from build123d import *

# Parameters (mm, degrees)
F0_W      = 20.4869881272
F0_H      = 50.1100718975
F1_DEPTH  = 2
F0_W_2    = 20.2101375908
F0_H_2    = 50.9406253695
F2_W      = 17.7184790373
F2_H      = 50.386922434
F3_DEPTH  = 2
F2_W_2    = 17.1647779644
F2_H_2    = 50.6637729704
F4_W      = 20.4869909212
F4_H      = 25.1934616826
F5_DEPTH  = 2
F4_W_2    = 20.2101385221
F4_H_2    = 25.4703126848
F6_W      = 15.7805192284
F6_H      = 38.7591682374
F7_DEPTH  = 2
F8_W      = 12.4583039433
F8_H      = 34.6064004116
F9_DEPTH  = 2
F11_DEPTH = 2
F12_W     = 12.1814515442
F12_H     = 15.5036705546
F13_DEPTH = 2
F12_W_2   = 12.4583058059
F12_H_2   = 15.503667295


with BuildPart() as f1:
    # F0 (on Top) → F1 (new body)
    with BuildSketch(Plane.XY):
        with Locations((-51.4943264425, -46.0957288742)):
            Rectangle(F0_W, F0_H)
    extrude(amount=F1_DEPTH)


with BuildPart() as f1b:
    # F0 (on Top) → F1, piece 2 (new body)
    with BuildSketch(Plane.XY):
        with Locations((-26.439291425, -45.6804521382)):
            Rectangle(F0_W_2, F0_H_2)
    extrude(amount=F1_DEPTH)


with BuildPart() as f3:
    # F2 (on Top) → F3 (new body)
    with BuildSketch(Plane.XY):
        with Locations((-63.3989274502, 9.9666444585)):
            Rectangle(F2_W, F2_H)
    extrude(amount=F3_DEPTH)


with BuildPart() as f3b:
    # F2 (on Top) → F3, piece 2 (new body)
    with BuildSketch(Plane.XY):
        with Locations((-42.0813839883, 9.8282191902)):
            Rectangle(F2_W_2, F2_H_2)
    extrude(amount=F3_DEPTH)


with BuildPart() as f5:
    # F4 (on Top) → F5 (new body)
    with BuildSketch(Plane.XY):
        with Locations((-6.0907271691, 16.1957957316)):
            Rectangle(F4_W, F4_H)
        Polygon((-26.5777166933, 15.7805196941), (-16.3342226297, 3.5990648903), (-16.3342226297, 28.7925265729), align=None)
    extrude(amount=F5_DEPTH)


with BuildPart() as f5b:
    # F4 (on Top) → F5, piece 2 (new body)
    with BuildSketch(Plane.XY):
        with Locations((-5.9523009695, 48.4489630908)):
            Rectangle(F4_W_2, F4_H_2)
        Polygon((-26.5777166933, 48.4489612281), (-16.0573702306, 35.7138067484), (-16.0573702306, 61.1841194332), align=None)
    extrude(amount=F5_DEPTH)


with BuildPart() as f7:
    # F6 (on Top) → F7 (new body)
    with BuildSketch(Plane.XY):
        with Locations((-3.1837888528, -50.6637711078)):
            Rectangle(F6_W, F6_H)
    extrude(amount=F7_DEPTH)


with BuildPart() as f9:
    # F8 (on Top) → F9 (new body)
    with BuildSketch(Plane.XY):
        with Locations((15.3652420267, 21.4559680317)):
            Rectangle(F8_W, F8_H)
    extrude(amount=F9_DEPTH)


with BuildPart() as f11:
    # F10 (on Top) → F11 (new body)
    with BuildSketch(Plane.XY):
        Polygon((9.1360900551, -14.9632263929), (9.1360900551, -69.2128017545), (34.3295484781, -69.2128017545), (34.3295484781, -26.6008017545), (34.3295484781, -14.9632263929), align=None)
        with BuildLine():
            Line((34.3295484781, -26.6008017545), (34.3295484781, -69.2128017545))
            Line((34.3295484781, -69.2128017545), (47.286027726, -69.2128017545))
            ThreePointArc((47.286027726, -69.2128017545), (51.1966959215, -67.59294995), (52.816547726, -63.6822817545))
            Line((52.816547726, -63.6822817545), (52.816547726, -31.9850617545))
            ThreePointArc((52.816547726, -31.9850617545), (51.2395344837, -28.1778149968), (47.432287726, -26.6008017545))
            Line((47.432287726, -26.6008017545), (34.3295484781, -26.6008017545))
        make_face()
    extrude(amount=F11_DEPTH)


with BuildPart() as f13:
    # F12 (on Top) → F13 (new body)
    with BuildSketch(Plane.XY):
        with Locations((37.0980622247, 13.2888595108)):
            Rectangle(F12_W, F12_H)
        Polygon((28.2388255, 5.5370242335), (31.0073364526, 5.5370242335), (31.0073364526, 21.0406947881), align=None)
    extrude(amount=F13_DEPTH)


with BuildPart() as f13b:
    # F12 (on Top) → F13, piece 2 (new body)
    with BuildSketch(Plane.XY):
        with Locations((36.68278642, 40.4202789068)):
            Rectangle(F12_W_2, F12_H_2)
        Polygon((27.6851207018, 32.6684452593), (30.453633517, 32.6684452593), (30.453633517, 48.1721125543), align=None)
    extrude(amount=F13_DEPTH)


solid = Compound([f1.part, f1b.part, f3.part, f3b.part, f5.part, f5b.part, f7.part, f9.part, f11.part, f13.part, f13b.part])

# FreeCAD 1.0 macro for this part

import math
import FreeCAD as App
import Part
import Sketcher
Q = App.Units.Quantity

doc = App.newDocument("Part")
body = doc.addObject("PartDesign::Body", "Body")

sketch1 = body.newObject("Sketcher::SketchObject", "Sketch")
sketch1.AttachmentSupport = (doc.getObject("XY_Plane"), [""])
sketch1.MapMode = "FlatFace"
sketch1.addGeometry(Part.LineSegment(App.Vector(-62, -21, 0), App.Vector(-62, -71, 0)), False)
sketch1.addGeometry(Part.LineSegment(App.Vector(-62, -71, 0), App.Vector(-41, -71, 0)), False)
sketch1.addGeometry(Part.LineSegment(App.Vector(-41, -71, 0), App.Vector(-41, -21, 0)), False)
sketch1.addGeometry(Part.LineSegment(App.Vector(-41, -21, 0), App.Vector(-62, -21, 0)), False)
sketch1.addConstraint(Sketcher.Constraint("Coincident", 0, 2, 1, 1))
sketch1.addConstraint(Sketcher.Constraint("Coincident", 1, 2, 2, 1))
sketch1.addConstraint(Sketcher.Constraint("Coincident", 2, 2, 3, 1))
sketch1.addConstraint(Sketcher.Constraint("Coincident", 3, 2, 0, 1))
sketch1.addConstraint(Sketcher.Constraint("Vertical", 0))
sketch1.addConstraint(Sketcher.Constraint("Horizontal", 1))
sketch1.addConstraint(Sketcher.Constraint("Vertical", 2))
sketch1.addConstraint(Sketcher.Constraint("Horizontal", 3))
sketch1.addConstraint(Sketcher.Constraint("DistanceX", 1, 1, 1, 2, Q("20.486988 mm")))
sketch1.addConstraint(Sketcher.Constraint("DistanceY", 0, 2, 0, 1, Q("50.110072 mm")))
sketch1.addConstraint(Sketcher.Constraint("DistanceX", 0, 2, -1, 1, Q("61.737821 mm")))
sketch1.addConstraint(Sketcher.Constraint("DistanceY", 0, 2, -1, 1, Q("71.150765 mm")))
pad1 = body.newObject("PartDesign::Pad", "Pad")
pad1.Profile = sketch1
pad1.Length = 2
body2 = doc.addObject("PartDesign::Body", "Body001")

sketch2 = body2.newObject("Sketcher::SketchObject", "Sketch001")
sketch2.AttachmentSupport = (doc.getObject("XY_Plane001"), [""])
sketch2.MapMode = "FlatFace"
sketch2.addGeometry(Part.LineSegment(App.Vector(-37, -20, 0), App.Vector(-37, -71, 0)), False)
sketch2.addGeometry(Part.LineSegment(App.Vector(-37, -71, 0), App.Vector(-16, -71, 0)), False)
sketch2.addGeometry(Part.LineSegment(App.Vector(-16, -71, 0), App.Vector(-16, -20, 0)), False)
sketch2.addGeometry(Part.LineSegment(App.Vector(-16, -20, 0), App.Vector(-37, -20, 0)), False)
sketch2.addConstraint(Sketcher.Constraint("Coincident", 0, 2, 1, 1))
sketch2.addConstraint(Sketcher.Constraint("Coincident", 1, 2, 2, 1))
sketch2.addConstraint(Sketcher.Constraint("Coincident", 2, 2, 3, 1))
sketch2.addConstraint(Sketcher.Constraint("Coincident", 3, 2, 0, 1))
sketch2.addConstraint(Sketcher.Constraint("Vertical", 0))
sketch2.addConstraint(Sketcher.Constraint("Horizontal", 1))
sketch2.addConstraint(Sketcher.Constraint("Vertical", 2))
sketch2.addConstraint(Sketcher.Constraint("Horizontal", 3))
sketch2.addConstraint(Sketcher.Constraint("DistanceX", 1, 1, 1, 2, Q("20.210138 mm")))
sketch2.addConstraint(Sketcher.Constraint("DistanceY", 0, 2, 0, 1, Q("50.940625 mm")))
sketch2.addConstraint(Sketcher.Constraint("DistanceX", 0, 2, -1, 1, Q("36.54436 mm")))
sketch2.addConstraint(Sketcher.Constraint("DistanceY", 2, 2, -1, 1, Q("20.210139 mm")))
pad2 = body2.newObject("PartDesign::Pad", "Pad001")
pad2.Profile = sketch2
pad2.Length = 2
body3 = doc.addObject("PartDesign::Body", "Body002")

sketch3 = body3.newObject("Sketcher::SketchObject", "Sketch002")
sketch3.AttachmentSupport = (doc.getObject("XY_Plane002"), [""])
sketch3.MapMode = "FlatFace"
sketch3.addGeometry(Part.LineSegment(App.Vector(-72, 35, 0), App.Vector(-72, -15, 0)), False)
sketch3.addGeometry(Part.LineSegment(App.Vector(-72, -15, 0), App.Vector(-55, -15, 0)), False)
sketch3.addGeometry(Part.LineSegment(App.Vector(-55, -15, 0), App.Vector(-55, 35, 0)), False)
sketch3.addGeometry(Part.LineSegment(App.Vector(-55, 35, 0), App.Vector(-72, 35, 0)), False)
sketch3.addConstraint(Sketcher.Constraint("Coincident", 0, 2, 1, 1))
sketch3.addConstraint(Sketcher.Constraint("Coincident", 1, 2, 2, 1))
sketch3.addConstraint(Sketcher.Constraint("Coincident", 2, 2, 3, 1))
sketch3.addConstraint(Sketcher.Constraint("Coincident", 3, 2, 0, 1))
sketch3.addConstraint(Sketcher.Constraint("Vertical", 0))
sketch3.addConstraint(Sketcher.Constraint("Horizontal", 1))
sketch3.addConstraint(Sketcher.Constraint("Vertical", 2))
sketch3.addConstraint(Sketcher.Constraint("Horizontal", 3))
sketch3.addConstraint(Sketcher.Constraint("DistanceX", 1, 1, 1, 2, Q("17.718479 mm")))
sketch3.addConstraint(Sketcher.Constraint("DistanceY", 0, 2, 0, 1, Q("50.386922 mm")))
sketch3.addConstraint(Sketcher.Constraint("DistanceX", 0, 2, -1, 1, Q("72.258167 mm")))
sketch3.addConstraint(Sketcher.Constraint("DistanceY", 0, 2, -1, 1, Q("15.226817 mm")))
pad3 = body3.newObject("PartDesign::Pad", "Pad002")
pad3.Profile = sketch3
pad3.Length = 2
body4 = doc.addObject("PartDesign::Body", "Body003")

sketch4 = body4.newObject("Sketcher::SketchObject", "Sketch003")
sketch4.AttachmentSupport = (doc.getObject("XY_Plane003"), [""])
sketch4.MapMode = "FlatFace"
sketch4.addGeometry(Part.LineSegment(App.Vector(-51, 35, 0), App.Vector(-51, -16, 0)), False)
sketch4.addGeometry(Part.LineSegment(App.Vector(-51, -16, 0), App.Vector(-33, -16, 0)), False)
sketch4.addGeometry(Part.LineSegment(App.Vector(-33, -16, 0), App.Vector(-33, 35, 0)), False)
sketch4.addGeometry(Part.LineSegment(App.Vector(-33, 35, 0), App.Vector(-51, 35, 0)), False)
sketch4.addConstraint(Sketcher.Constraint("Coincident", 0, 2, 1, 1))
sketch4.addConstraint(Sketcher.Constraint("Coincident", 1, 2, 2, 1))
sketch4.addConstraint(Sketcher.Constraint("Coincident", 2, 2, 3, 1))
sketch4.addConstraint(Sketcher.Constraint("Coincident", 3, 2, 0, 1))
sketch4.addConstraint(Sketcher.Constraint("Vertical", 0))
sketch4.addConstraint(Sketcher.Constraint("Horizontal", 1))
sketch4.addConstraint(Sketcher.Constraint("Vertical", 2))
sketch4.addConstraint(Sketcher.Constraint("Horizontal", 3))
sketch4.addConstraint(Sketcher.Constraint("DistanceX", 1, 1, 1, 2, Q("17.164778 mm")))
sketch4.addConstraint(Sketcher.Constraint("DistanceY", 0, 2, 0, 1, Q("50.663773 mm")))
sketch4.addConstraint(Sketcher.Constraint("DistanceX", 0, 2, -1, 1, Q("50.663773 mm")))
sketch4.addConstraint(Sketcher.Constraint("DistanceY", 0, 2, -1, 1, Q("15.503667 mm")))
pad4 = body4.newObject("PartDesign::Pad", "Pad003")
pad4.Profile = sketch4
pad4.Length = 2
body5 = doc.addObject("PartDesign::Body", "Body004")

sketch5 = body5.newObject("Sketcher::SketchObject", "Sketch004")
sketch5.AttachmentSupport = (doc.getObject("XY_Plane004"), [""])
sketch5.MapMode = "FlatFace"
sketch5.addGeometry(Part.LineSegment(App.Vector(-16, 4, 0), App.Vector(4, 4, 0)), False)
sketch5.addGeometry(Part.LineSegment(App.Vector(4, 4, 0), App.Vector(4, 29, 0)), False)
sketch5.addGeometry(Part.LineSegment(App.Vector(4, 29, 0), App.Vector(-16, 29, 0)), False)
sketch5.addGeometry(Part.LineSegment(App.Vector(-16, 29, 0), App.Vector(-27, 16, 0)), False)
sketch5.addGeometry(Part.LineSegment(App.Vector(-27, 16, 0), App.Vector(-16, 4, 0)), False)
sketch5.addConstraint(Sketcher.Constraint("Coincident", 0, 2, 1, 1))
sketch5.addConstraint(Sketcher.Constraint("Coincident", 1, 2, 2, 1))
sketch5.addConstraint(Sketcher.Constraint("Coincident", 2, 2, 3, 1))
sketch5.addConstraint(Sketcher.Constraint("Coincident", 3, 2, 4, 1))
sketch5.addConstraint(Sketcher.Constraint("Coincident", 4, 2, 0, 1))
sketch5.addConstraint(Sketcher.Constraint("Horizontal", 0))
sketch5.addConstraint(Sketcher.Constraint("Vertical", 1))
sketch5.addConstraint(Sketcher.Constraint("Horizontal", 2))
sketch5.addConstraint(Sketcher.Constraint("Vertical", 2, 2, 4, 2))
sketch5.addConstraint(Sketcher.Constraint("DistanceX", 0, 1, 0, 2, Q("20.486991 mm")))
sketch5.addConstraint(Sketcher.Constraint("DistanceY", 1, 1, 1, 2, Q("25.193462 mm")))
sketch5.addConstraint(Sketcher.Constraint("Distance", 3, Q("16.560238 mm")))
sketch5.addConstraint(Sketcher.Constraint("DistanceX", -1, 1, 0, 2, Q("4.152768 mm")))
sketch5.addConstraint(Sketcher.Constraint("DistanceY", -1, 1, 3, 2, Q("15.78052 mm")))
sketch5.addConstraint(Sketcher.Constraint("Distance", 4, Q("15.915936 mm")))
pad5 = body5.newObject("PartDesign::Pad", "Pad004")
pad5.Profile = sketch5
pad5.Length = 2
body6 = doc.addObject("PartDesign::Body", "Body005")

sketch6 = body6.newObject("Sketcher::SketchObject", "Sketch005")
sketch6.AttachmentSupport = (doc.getObject("XY_Plane005"), [""])
sketch6.MapMode = "FlatFace"
sketch6.addGeometry(Part.LineSegment(App.Vector(-16, 36, 0), App.Vector(4, 36, 0)), False)
sketch6.addGeometry(Part.LineSegment(App.Vector(4, 36, 0), App.Vector(4, 61, 0)), False)
sketch6.addGeometry(Part.LineSegment(App.Vector(4, 61, 0), App.Vector(-16, 61, 0)), False)
sketch6.addGeometry(Part.LineSegment(App.Vector(-16, 61, 0), App.Vector(-27, 48, 0)), False)
sketch6.addGeometry(Part.LineSegment(App.Vector(-27, 48, 0), App.Vector(-16, 36, 0)), False)
sketch6.addConstraint(Sketcher.Constraint("Coincident", 0, 2, 1, 1))
sketch6.addConstraint(Sketcher.Constraint("Coincident", 1, 2, 2, 1))
sketch6.addConstraint(Sketcher.Constraint("Coincident", 2, 2, 3, 1))
sketch6.addConstraint(Sketcher.Constraint("Coincident", 3, 2, 4, 1))
sketch6.addConstraint(Sketcher.Constraint("Coincident", 4, 2, 0, 1))
sketch6.addConstraint(Sketcher.Constraint("Horizontal", 0))
sketch6.addConstraint(Sketcher.Constraint("Vertical", 1))
sketch6.addConstraint(Sketcher.Constraint("Horizontal", 2))
sketch6.addConstraint(Sketcher.Constraint("Vertical", 2, 2, 4, 2))
sketch6.addConstraint(Sketcher.Constraint("DistanceX", 0, 1, 0, 2, Q("20.210139 mm")))
sketch6.addConstraint(Sketcher.Constraint("Distance", 4, Q("16.51853 mm")))
sketch6.addConstraint(Sketcher.Constraint("DistanceY", 1, 1, 1, 2, Q("25.470313 mm")))
sketch6.addConstraint(Sketcher.Constraint("DistanceX", -1, 1, 0, 2, Q("4.152768 mm")))
sketch6.addConstraint(Sketcher.Constraint("DistanceY", -1, 1, 1, 2, Q("61.184119 mm")))
sketch6.addConstraint(Sketcher.Constraint("DistanceY", -1, 1, 3, 2, Q("48.448961 mm")))
pad6 = body6.newObject("PartDesign::Pad", "Pad005")
pad6.Profile = sketch6
pad6.Length = 2
body7 = doc.addObject("PartDesign::Body", "Body006")

sketch7 = body7.newObject("Sketcher::SketchObject", "Sketch006")
sketch7.AttachmentSupport = (doc.getObject("XY_Plane006"), [""])
sketch7.MapMode = "FlatFace"
sketch7.addGeometry(Part.LineSegment(App.Vector(-11, -31, 0), App.Vector(-11, -70, 0)), False)
sketch7.addGeometry(Part.LineSegment(App.Vector(-11, -70, 0), App.Vector(5, -70, 0)), False)
sketch7.addGeometry(Part.LineSegment(App.Vector(5, -70, 0), App.Vector(5, -31, 0)), False)
sketch7.addGeometry(Part.LineSegment(App.Vector(5, -31, 0), App.Vector(-11, -31, 0)), False)
sketch7.addConstraint(Sketcher.Constraint("Coincident", 0, 2, 1, 1))
sketch7.addConstraint(Sketcher.Constraint("Coincident", 1, 2, 2, 1))
sketch7.addConstraint(Sketcher.Constraint("Coincident", 2, 2, 3, 1))
sketch7.addConstraint(Sketcher.Constraint("Coincident", 3, 2, 0, 1))
sketch7.addConstraint(Sketcher.Constraint("Vertical", 0))
sketch7.addConstraint(Sketcher.Constraint("Horizontal", 1))
sketch7.addConstraint(Sketcher.Constraint("Vertical", 2))
sketch7.addConstraint(Sketcher.Constraint("Horizontal", 3))
sketch7.addConstraint(Sketcher.Constraint("DistanceX", 1, 1, 1, 2, Q("15.780519 mm")))
sketch7.addConstraint(Sketcher.Constraint("DistanceY", 0, 2, 0, 1, Q("38.759168 mm")))
sketch7.addConstraint(Sketcher.Constraint("DistanceX", 0, 2, -1, 1, Q("11.074048 mm")))
sketch7.addConstraint(Sketcher.Constraint("DistanceY", 0, 2, -1, 1, Q("70.043355 mm")))
pad7 = body7.newObject("PartDesign::Pad", "Pad006")
pad7.Profile = sketch7
pad7.Length = 2
body8 = doc.addObject("PartDesign::Body", "Body007")

sketch8 = body8.newObject("Sketcher::SketchObject", "Sketch007")
sketch8.AttachmentSupport = (doc.getObject("XY_Plane007"), [""])
sketch8.MapMode = "FlatFace"
sketch8.addGeometry(Part.LineSegment(App.Vector(9, 39, 0), App.Vector(9, 4, 0)), False)
sketch8.addGeometry(Part.LineSegment(App.Vector(9, 4, 0), App.Vector(22, 4, 0)), False)
sketch8.addGeometry(Part.LineSegment(App.Vector(22, 4, 0), App.Vector(22, 39, 0)), False)
sketch8.addGeometry(Part.LineSegment(App.Vector(22, 39, 0), App.Vector(9, 39, 0)), False)
sketch8.addConstraint(Sketcher.Constraint("Coincident", 0, 2, 1, 1))
sketch8.addConstraint(Sketcher.Constraint("Coincident", 1, 2, 2, 1))
sketch8.addConstraint(Sketcher.Constraint("Coincident", 2, 2, 3, 1))
sketch8.addConstraint(Sketcher.Constraint("Coincident", 3, 2, 0, 1))
sketch8.addConstraint(Sketcher.Constraint("Vertical", 0))
sketch8.addConstraint(Sketcher.Constraint("Horizontal", 1))
sketch8.addConstraint(Sketcher.Constraint("Vertical", 2))
sketch8.addConstraint(Sketcher.Constraint("Horizontal", 3))
sketch8.addConstraint(Sketcher.Constraint("DistanceY", 0, 2, 0, 1, Q("34.6064 mm")))
sketch8.addConstraint(Sketcher.Constraint("DistanceX", 1, 1, 1, 2, Q("12.458304 mm")))
sketch8.addConstraint(Sketcher.Constraint("DistanceX", -1, 1, 0, 2, Q("9.13609 mm")))
sketch8.addConstraint(Sketcher.Constraint("DistanceY", -1, 1, 2, 2, Q("38.759168 mm")))
pad8 = body8.newObject("PartDesign::Pad", "Pad007")
pad8.Profile = sketch8
pad8.Length = 2
body9 = doc.addObject("PartDesign::Body", "Body008")

sketch9 = body9.newObject("Sketcher::SketchObject", "Sketch008")
sketch9.AttachmentSupport = (doc.getObject("XY_Plane008"), [""])
sketch9.MapMode = "FlatFace"
sketch9.addGeometry(Part.LineSegment(App.Vector(9, -15, 0), App.Vector(9, -69, 0)), False)
sketch9.addGeometry(Part.LineSegment(App.Vector(9, -69, 0), App.Vector(47, -69, 0)), False)
sketch9.addGeometry(Part.ArcOfCircle(Part.Circle(App.Vector(47, -64, 0), App.Vector(0, 0, 1), 6), math.radians(-90), math.radians(0)), False)
sketch9.addGeometry(Part.LineSegment(App.Vector(53, -64, 0), App.Vector(53, -32, 0)), False)
sketch9.addGeometry(Part.ArcOfCircle(Part.Circle(App.Vector(47, -32, 0), App.Vector(0, 0, 1), 5), math.radians(0), math.radians(90)), False)
sketch9.addGeometry(Part.LineSegment(App.Vector(47, -27, 0), App.Vector(34, -27, 0)), False)
sketch9.addGeometry(Part.LineSegment(App.Vector(34, -27, 0), App.Vector(34, -15, 0)), False)
sketch9.addGeometry(Part.LineSegment(App.Vector(34, -15, 0), App.Vector(9, -15, 0)), False)
sketch9.addConstraint(Sketcher.Constraint("Coincident", 0, 2, 1, 1))
sketch9.addConstraint(Sketcher.Constraint("Tangent", 1, 2, 2, 1))
sketch9.addConstraint(Sketcher.Constraint("Tangent", 2, 2, 3, 1))
sketch9.addConstraint(Sketcher.Constraint("Tangent", 3, 2, 4, 1))
sketch9.addConstraint(Sketcher.Constraint("Tangent", 4, 2, 5, 1))
sketch9.addConstraint(Sketcher.Constraint("Coincident", 5, 2, 6, 1))
sketch9.addConstraint(Sketcher.Constraint("Coincident", 6, 2, 7, 1))
sketch9.addConstraint(Sketcher.Constraint("Coincident", 7, 2, 0, 1))
sketch9.addConstraint(Sketcher.Constraint("Vertical", 0))
sketch9.addConstraint(Sketcher.Constraint("Horizontal", 1))
sketch9.addConstraint(Sketcher.Constraint("Vertical", 3))
sketch9.addConstraint(Sketcher.Constraint("Horizontal", 5))
sketch9.addConstraint(Sketcher.Constraint("Vertical", 6))
sketch9.addConstraint(Sketcher.Constraint("Horizontal", 7))
sketch9.addConstraint(Sketcher.Constraint("Radius", 2, Q("5.53052 mm")))
sketch9.addConstraint(Sketcher.Constraint("Radius", 4, Q("5.38426 mm")))
sketch9.addConstraint(Sketcher.Constraint("DistanceY", 1, 2, 4, 2, Q("42.612 mm")))
sketch9.addConstraint(Sketcher.Constraint("DistanceX", 5, 2, 3, 2, Q("18.486999 mm")))
sketch9.addConstraint(Sketcher.Constraint("DistanceX", 7, 2, 7, 1, Q("25.193458 mm")))
sketch9.addConstraint(Sketcher.Constraint("DistanceY", 0, 2, -1, 1, Q("69.212802 mm")))
sketch9.addConstraint(Sketcher.Constraint("DistanceY", 0, 2, 0, 1, Q("54.249575 mm")))
sketch9.addConstraint(Sketcher.Constraint("DistanceX", -1, 1, 0, 2, Q("9.13609 mm")))
pad9 = body9.newObject("PartDesign::Pad", "Pad008")
pad9.Profile = sketch9
pad9.Length = 2
body10 = doc.addObject("PartDesign::Body", "Body009")

sketch10 = body10.newObject("Sketcher::SketchObject", "Sketch009")
sketch10.AttachmentSupport = (doc.getObject("XY_Plane009"), [""])
sketch10.MapMode = "FlatFace"
sketch10.addGeometry(Part.LineSegment(App.Vector(43, 6, 0), App.Vector(43, 21, 0)), False)
sketch10.addGeometry(Part.LineSegment(App.Vector(43, 21, 0), App.Vector(31, 21, 0)), False)
sketch10.addGeometry(Part.LineSegment(App.Vector(31, 21, 0), App.Vector(28, 6, 0)), False)
sketch10.addGeometry(Part.LineSegment(App.Vector(28, 6, 0), App.Vector(43, 6, 0)), False)
sketch10.addConstraint(Sketcher.Constraint("Coincident", 0, 2, 1, 1))
sketch10.addConstraint(Sketcher.Constraint("Coincident", 1, 2, 2, 1))
sketch10.addConstraint(Sketcher.Constraint("Coincident", 2, 2, 3, 1))
sketch10.addConstraint(Sketcher.Constraint("Coincident", 3, 2, 0, 1))
sketch10.addConstraint(Sketcher.Constraint("Vertical", 0))
sketch10.addConstraint(Sketcher.Constraint("Horizontal", 1))
sketch10.addConstraint(Sketcher.Constraint("Horizontal", 3))
sketch10.addConstraint(Sketcher.Constraint("DistanceX", 1, 2, 1, 1, Q("12.181452 mm")))
sketch10.addConstraint(Sketcher.Constraint("DistanceY", 0, 1, 0, 2, Q("15.503671 mm")))
sketch10.addConstraint(Sketcher.Constraint("Distance", 2, Q("15.748919 mm")))
sketch10.addConstraint(Sketcher.Constraint("DistanceX", -1, 1, 0, 2, Q("43.188788 mm")))
sketch10.addConstraint(Sketcher.Constraint("DistanceY", -1, 1, 0, 2, Q("21.040695 mm")))
pad10 = body10.newObject("PartDesign::Pad", "Pad009")
pad10.Profile = sketch10
pad10.Length = 2
body11 = doc.addObject("PartDesign::Body", "Body010")

sketch11 = body11.newObject("Sketcher::SketchObject", "Sketch010")
sketch11.AttachmentSupport = (doc.getObject("XY_Plane010"), [""])
sketch11.MapMode = "FlatFace"
sketch11.addGeometry(Part.LineSegment(App.Vector(43, 33, 0), App.Vector(43, 48, 0)), False)
sketch11.addGeometry(Part.LineSegment(App.Vector(43, 48, 0), App.Vector(30, 48, 0)), False)
sketch11.addGeometry(Part.LineSegment(App.Vector(30, 48, 0), App.Vector(28, 33, 0)), False)
sketch11.addGeometry(Part.LineSegment(App.Vector(28, 33, 0), App.Vector(43, 33, 0)), False)
sketch11.addConstraint(Sketcher.Constraint("Coincident", 0, 2, 1, 1))
sketch11.addConstraint(Sketcher.Constraint("Coincident", 1, 2, 2, 1))
sketch11.addConstraint(Sketcher.Constraint("Coincident", 2, 2, 3, 1))
sketch11.addConstraint(Sketcher.Constraint("Coincident", 3, 2, 0, 1))
sketch11.addConstraint(Sketcher.Constraint("Vertical", 0))
sketch11.addConstraint(Sketcher.Constraint("Horizontal", 1))
sketch11.addConstraint(Sketcher.Constraint("Horizontal", 3))
sketch11.addConstraint(Sketcher.Constraint("DistanceX", 3, 1, 3, 2, Q("15.226819 mm")))
sketch11.addConstraint(Sketcher.Constraint("DistanceX", 1, 2, 1, 1, Q("12.458306 mm")))
sketch11.addConstraint(Sketcher.Constraint("DistanceY", 0, 1, 0, 2, Q("15.503667 mm")))
sketch11.addConstraint(Sketcher.Constraint("DistanceX", -1, 1, 0, 2, Q("42.911939 mm")))
sketch11.addConstraint(Sketcher.Constraint("DistanceY", -1, 1, 0, 2, Q("48.172113 mm")))
pad11 = body11.newObject("PartDesign::Pad", "Pad010")
pad11.Profile = sketch11
pad11.Length = 2

doc.recompute()
